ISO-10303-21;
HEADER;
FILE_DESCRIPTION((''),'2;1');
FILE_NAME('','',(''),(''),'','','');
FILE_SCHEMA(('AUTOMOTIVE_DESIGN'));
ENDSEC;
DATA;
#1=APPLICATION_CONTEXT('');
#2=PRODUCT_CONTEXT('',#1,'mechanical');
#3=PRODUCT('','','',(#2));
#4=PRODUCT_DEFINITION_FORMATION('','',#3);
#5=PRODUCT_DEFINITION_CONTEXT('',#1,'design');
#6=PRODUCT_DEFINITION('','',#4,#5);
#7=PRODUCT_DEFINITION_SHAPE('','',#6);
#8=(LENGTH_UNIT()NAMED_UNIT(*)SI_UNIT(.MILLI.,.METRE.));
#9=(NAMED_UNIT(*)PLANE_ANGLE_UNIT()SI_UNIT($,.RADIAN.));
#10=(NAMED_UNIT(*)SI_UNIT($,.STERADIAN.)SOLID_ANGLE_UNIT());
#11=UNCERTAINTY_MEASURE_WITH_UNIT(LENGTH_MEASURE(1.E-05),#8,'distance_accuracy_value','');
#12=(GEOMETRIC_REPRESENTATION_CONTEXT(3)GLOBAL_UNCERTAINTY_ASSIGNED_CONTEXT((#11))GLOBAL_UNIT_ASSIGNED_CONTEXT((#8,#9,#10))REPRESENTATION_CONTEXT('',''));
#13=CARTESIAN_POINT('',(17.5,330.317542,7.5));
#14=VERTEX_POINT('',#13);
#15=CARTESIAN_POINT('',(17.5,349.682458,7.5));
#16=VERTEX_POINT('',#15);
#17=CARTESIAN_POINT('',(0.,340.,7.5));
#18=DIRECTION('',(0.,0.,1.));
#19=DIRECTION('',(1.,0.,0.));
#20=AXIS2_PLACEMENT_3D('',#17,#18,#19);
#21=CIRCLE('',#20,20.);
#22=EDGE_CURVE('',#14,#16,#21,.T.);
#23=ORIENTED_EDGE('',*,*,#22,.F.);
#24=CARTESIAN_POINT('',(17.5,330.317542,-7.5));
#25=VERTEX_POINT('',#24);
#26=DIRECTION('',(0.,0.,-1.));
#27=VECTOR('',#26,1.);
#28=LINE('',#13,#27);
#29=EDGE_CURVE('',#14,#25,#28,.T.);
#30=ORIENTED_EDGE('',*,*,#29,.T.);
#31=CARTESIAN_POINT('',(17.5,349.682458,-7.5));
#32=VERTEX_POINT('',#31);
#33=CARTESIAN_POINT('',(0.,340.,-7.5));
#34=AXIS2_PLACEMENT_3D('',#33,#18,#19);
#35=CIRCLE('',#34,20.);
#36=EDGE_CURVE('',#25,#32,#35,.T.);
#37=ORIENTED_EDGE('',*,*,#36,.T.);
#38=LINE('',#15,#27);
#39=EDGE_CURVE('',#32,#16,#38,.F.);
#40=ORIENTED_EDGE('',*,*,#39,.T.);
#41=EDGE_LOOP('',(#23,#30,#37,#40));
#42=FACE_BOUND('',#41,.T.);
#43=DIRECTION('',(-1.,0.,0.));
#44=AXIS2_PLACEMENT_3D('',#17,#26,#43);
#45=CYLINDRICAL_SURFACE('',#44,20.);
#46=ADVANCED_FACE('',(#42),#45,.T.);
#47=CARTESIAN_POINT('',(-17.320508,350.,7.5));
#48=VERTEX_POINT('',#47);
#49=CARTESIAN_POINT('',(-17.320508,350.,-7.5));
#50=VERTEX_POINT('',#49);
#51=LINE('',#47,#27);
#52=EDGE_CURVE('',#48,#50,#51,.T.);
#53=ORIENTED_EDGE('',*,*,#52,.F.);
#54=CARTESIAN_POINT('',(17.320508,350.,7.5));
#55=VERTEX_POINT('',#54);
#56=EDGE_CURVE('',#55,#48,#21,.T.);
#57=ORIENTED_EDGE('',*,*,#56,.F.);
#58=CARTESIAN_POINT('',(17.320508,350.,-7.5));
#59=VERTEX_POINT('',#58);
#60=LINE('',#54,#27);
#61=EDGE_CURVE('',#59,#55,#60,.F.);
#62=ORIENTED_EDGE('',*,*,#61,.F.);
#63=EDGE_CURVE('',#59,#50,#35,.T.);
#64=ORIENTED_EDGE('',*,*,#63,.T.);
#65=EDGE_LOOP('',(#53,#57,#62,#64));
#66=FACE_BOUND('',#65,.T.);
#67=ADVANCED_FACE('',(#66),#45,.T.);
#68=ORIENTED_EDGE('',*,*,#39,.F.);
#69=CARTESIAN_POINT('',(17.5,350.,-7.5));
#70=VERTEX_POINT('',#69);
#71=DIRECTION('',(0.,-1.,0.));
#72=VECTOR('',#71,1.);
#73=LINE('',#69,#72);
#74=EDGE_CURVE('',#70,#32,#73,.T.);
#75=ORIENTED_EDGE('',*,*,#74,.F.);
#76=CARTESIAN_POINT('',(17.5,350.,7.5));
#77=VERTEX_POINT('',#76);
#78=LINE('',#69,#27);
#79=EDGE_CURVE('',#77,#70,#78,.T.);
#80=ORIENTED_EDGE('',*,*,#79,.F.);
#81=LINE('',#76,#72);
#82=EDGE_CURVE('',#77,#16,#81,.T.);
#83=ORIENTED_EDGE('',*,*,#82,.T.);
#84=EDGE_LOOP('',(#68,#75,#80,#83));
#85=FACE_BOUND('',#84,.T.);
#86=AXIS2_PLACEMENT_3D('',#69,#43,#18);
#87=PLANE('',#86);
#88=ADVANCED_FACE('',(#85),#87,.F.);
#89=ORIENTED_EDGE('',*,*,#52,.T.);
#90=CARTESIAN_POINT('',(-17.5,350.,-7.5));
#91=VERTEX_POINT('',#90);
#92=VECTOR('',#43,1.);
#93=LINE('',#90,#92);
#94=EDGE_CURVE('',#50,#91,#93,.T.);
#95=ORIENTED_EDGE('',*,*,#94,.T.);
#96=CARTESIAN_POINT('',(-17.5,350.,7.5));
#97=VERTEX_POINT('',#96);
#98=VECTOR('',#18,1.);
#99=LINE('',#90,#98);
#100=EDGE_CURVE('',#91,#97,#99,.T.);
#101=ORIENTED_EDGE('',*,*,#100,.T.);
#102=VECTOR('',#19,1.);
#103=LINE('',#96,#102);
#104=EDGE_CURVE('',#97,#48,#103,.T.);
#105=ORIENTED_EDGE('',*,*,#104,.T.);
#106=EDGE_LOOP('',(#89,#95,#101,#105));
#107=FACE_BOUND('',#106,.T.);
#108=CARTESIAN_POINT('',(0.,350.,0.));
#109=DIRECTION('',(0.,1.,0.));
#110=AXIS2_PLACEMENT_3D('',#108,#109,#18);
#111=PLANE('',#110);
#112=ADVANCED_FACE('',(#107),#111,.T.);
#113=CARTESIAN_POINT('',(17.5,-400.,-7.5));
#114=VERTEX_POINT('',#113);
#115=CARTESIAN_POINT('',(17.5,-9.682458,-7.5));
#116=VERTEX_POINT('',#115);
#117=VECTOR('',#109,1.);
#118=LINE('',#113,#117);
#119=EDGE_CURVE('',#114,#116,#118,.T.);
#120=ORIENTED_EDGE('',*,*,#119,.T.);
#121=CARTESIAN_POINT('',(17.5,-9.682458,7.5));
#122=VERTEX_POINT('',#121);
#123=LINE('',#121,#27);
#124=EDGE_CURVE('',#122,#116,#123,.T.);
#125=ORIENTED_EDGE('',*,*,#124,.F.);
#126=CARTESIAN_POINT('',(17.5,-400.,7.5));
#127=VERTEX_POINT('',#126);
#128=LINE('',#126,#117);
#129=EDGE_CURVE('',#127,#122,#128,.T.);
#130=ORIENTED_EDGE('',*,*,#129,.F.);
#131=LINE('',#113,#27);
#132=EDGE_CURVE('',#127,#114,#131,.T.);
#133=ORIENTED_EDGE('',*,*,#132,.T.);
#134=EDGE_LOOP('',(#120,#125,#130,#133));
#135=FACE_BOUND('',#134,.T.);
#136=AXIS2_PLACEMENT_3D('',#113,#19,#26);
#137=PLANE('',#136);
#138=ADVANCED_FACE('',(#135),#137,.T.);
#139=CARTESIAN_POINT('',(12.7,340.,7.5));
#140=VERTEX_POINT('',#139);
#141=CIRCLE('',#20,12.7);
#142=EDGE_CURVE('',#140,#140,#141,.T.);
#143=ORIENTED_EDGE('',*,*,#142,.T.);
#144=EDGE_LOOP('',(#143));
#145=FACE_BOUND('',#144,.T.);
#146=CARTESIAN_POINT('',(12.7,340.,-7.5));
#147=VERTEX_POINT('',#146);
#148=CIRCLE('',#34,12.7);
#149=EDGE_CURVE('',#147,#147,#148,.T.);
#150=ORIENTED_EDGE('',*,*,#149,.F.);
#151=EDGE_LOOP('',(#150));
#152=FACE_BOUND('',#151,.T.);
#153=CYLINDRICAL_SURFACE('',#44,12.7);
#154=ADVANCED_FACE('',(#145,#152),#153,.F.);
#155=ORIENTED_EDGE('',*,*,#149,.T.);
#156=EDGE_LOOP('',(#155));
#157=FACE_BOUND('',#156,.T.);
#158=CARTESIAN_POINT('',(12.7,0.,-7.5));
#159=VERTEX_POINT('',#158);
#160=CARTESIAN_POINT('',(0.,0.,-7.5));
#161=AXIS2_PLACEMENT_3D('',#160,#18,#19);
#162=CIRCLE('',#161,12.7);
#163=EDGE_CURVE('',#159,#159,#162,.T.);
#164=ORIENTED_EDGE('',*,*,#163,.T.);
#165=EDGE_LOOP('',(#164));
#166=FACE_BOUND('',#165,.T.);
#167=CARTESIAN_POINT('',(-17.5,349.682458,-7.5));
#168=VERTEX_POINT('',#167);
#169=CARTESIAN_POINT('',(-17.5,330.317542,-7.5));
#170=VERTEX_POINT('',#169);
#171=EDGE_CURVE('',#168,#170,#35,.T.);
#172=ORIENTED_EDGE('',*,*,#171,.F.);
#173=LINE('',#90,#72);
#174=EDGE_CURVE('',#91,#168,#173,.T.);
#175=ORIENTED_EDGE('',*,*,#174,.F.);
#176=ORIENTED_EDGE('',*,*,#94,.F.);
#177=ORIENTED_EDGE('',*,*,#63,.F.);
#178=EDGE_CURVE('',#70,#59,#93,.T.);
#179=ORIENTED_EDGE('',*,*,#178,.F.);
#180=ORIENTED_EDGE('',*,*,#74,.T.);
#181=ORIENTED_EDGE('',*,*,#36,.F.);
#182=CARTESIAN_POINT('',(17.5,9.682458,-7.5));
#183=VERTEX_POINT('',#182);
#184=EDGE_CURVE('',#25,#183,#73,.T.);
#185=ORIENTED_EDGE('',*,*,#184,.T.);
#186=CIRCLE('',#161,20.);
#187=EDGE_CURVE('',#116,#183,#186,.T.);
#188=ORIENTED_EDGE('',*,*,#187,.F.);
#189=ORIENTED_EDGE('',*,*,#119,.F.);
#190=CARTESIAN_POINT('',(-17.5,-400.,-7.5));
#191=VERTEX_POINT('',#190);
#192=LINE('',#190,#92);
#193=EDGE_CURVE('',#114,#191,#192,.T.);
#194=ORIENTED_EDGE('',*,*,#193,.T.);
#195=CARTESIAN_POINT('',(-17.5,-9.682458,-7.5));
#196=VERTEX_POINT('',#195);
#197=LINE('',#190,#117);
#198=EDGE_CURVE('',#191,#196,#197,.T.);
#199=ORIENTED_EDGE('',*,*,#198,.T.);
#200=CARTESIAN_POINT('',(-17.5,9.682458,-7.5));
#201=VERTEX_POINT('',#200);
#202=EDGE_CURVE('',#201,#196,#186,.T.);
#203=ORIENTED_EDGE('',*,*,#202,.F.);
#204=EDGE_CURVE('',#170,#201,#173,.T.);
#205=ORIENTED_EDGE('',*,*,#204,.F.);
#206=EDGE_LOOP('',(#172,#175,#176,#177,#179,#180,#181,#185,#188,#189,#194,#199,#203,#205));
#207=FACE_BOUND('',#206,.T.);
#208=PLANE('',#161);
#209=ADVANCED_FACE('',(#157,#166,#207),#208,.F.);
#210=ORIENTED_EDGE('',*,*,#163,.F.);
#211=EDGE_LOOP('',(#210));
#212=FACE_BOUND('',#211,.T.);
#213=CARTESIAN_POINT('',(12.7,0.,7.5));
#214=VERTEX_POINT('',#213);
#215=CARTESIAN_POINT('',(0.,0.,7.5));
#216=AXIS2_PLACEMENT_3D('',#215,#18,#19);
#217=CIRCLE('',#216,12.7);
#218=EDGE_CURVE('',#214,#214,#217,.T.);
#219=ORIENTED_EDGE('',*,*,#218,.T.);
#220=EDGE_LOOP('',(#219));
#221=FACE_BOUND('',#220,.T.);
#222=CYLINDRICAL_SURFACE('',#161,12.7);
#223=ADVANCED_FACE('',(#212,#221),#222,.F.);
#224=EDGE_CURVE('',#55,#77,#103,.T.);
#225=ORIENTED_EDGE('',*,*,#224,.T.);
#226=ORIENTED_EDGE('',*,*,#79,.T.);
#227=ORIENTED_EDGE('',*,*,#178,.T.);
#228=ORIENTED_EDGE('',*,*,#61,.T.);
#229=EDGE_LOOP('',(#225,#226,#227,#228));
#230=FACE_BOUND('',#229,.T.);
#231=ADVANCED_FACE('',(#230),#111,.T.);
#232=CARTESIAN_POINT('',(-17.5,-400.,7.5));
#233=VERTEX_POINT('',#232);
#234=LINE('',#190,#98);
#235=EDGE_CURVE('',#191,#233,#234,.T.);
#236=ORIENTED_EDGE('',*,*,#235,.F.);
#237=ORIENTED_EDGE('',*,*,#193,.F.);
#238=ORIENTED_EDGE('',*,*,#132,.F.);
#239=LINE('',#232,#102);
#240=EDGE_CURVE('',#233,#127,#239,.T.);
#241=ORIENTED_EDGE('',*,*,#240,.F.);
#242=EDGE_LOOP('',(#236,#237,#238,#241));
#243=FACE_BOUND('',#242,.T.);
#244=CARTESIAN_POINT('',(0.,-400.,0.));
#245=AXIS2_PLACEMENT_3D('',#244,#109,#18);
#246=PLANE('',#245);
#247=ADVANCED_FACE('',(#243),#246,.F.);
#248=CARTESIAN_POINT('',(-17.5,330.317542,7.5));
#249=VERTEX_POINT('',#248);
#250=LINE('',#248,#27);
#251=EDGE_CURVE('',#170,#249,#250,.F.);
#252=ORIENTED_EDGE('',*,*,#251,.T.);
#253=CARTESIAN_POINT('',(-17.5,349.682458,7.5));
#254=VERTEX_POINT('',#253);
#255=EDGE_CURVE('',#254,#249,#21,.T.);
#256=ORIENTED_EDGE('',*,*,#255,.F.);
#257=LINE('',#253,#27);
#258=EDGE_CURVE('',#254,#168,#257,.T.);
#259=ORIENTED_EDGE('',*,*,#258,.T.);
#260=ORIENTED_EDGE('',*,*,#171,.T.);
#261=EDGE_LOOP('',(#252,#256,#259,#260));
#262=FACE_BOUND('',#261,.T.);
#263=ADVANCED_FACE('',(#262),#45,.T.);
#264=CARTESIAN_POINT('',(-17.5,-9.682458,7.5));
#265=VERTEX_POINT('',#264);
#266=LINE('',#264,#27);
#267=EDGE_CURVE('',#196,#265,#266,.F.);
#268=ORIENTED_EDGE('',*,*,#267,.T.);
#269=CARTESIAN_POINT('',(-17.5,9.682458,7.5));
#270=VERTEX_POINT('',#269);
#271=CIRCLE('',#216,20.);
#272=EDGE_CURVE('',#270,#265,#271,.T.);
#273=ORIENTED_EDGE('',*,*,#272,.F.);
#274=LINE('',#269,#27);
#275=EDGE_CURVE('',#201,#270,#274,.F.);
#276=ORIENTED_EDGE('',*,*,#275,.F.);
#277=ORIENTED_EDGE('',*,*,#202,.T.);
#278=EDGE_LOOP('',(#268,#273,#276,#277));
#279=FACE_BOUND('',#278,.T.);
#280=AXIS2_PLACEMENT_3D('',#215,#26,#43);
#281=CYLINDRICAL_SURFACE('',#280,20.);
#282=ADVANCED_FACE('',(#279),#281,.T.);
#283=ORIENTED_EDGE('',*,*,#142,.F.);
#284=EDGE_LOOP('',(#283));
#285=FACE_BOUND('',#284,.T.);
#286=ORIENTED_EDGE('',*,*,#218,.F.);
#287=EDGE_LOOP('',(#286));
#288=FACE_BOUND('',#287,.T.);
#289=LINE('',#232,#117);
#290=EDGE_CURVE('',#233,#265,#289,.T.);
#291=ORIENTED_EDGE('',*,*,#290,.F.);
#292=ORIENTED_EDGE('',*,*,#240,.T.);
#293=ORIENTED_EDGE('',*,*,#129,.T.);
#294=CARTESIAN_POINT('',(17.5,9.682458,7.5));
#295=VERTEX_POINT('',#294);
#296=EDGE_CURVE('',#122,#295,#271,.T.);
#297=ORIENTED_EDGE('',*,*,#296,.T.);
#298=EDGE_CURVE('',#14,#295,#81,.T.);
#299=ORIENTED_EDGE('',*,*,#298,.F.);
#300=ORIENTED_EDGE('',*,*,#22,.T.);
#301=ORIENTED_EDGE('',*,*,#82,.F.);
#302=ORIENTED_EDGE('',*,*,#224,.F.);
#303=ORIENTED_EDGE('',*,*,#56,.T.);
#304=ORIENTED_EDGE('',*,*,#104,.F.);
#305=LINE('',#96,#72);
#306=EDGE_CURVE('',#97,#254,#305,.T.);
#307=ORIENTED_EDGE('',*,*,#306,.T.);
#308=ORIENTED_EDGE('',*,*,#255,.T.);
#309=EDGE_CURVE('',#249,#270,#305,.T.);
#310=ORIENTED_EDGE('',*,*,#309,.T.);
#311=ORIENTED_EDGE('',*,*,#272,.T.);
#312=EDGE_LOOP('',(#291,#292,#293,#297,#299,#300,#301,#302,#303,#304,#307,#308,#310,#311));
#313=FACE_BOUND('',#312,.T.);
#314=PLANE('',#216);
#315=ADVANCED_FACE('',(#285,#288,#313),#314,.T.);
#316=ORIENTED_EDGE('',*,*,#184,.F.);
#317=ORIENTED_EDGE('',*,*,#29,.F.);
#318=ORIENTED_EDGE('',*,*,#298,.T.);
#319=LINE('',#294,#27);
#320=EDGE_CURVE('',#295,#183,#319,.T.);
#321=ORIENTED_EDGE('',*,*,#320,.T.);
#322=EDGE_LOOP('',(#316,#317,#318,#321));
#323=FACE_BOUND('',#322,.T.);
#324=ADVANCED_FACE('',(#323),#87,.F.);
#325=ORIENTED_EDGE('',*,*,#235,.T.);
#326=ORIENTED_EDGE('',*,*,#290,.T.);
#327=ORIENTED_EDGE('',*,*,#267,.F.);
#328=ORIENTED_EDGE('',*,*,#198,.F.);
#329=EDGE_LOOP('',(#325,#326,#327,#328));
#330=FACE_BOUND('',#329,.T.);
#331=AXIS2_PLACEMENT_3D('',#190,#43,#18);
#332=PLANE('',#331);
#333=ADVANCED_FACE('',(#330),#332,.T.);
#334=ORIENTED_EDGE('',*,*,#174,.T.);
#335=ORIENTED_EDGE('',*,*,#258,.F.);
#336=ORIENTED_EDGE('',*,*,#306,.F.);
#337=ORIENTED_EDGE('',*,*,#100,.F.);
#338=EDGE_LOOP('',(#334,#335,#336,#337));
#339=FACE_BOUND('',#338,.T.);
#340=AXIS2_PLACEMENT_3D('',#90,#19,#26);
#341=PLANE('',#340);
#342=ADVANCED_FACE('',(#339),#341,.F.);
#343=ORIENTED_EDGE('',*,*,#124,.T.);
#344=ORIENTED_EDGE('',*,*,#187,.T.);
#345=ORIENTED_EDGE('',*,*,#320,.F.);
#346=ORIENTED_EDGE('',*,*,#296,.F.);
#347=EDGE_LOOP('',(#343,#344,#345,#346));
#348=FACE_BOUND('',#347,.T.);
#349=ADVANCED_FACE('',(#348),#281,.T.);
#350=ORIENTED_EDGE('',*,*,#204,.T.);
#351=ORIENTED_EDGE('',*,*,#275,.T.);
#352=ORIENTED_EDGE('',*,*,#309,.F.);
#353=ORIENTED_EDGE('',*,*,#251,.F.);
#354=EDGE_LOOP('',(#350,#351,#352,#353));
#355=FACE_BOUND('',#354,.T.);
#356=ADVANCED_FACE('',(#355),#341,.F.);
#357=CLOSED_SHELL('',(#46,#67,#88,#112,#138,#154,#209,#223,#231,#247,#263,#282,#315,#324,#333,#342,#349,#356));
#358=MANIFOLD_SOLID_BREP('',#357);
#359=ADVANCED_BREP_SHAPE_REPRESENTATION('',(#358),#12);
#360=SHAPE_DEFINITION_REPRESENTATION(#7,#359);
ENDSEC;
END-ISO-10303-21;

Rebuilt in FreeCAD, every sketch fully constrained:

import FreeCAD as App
import Part
import Sketcher
from FreeCAD import Vector
Q = App.Units.Quantity


def add_polygon(sketch, points):
    """Adds a closed chain of lines whose ends are joined by coincident constraints."""
    first, n = sketch.GeometryCount, len(points)
    for a, b in zip(points, points[1:] + points[:1]):
        sketch.addGeometry(Part.LineSegment(App.Vector(*a, 0), App.Vector(*b, 0)), False)
    for i in range(n):
        sketch.addConstraint(Sketcher.Constraint("Coincident", first + i, 2, first + (i + 1) % n, 1))

doc = App.newDocument("Part")
body = doc.addObject("PartDesign::Body", "Body")

sketch1 = body.newObject("Sketcher::SketchObject", "Sketch")
sketch1.AttachmentSupport = (doc.getObject("XY_Plane"), [""])
sketch1.MapMode = "FlatFace"
sketch1.addGeometry([
    Part.Circle(Vector(0, 0, 0), Vector(0, 0, 1), 20),
    Part.Circle(Vector(0, 0, 0), Vector(0, 0, 1), 13),
], False)
sketch1.addConstraint([
    Sketcher.Constraint("Coincident", 0, 3, -1, 1),
    Sketcher.Constraint("Coincident", 1, 3, -1, 1),
    Sketcher.Constraint("Diameter", 0, Q("40 mm")),
    Sketcher.Constraint("Diameter", 1, Q("25.4 mm")),
])
pad1 = body.newObject("PartDesign::Pad", "Pad")
pad1.Profile = sketch1
pad1.Length = 15
pad1.Midplane = True

sketch2 = body.newObject("Sketcher::SketchObject", "Sketch001")
sketch2.AttachmentSupport = (doc.getObject("XZ_Plane"), [""])
sketch2.MapMode = "FlatFace"
add_polygon(sketch2, [(-18, -8), (-18, 8), (18, 8), (18, -8)])
sketch2.addConstraint([
    Sketcher.Constraint("Vertical", 0),
    Sketcher.Constraint("Horizontal", 1),
    Sketcher.Constraint("Vertical", 2),
    Sketcher.Constraint("Horizontal", 3),
    Sketcher.Constraint("Symmetric", 0, 2, 2, 2, -1, 1),
    Sketcher.Constraint("DistanceX", 1, 1, 1, 2, Q("35 mm")),
    Sketcher.Constraint("DistanceY", 0, 1, 0, 2, Q("15 mm")),
])
pad2 = body.newObject("PartDesign::Pad", "Pad001")
pad2.Profile = sketch2
pad2.Length = 400

sketch3 = body.newObject("Sketcher::SketchObject", "Sketch002")
sketch3.AttachmentSupport = (doc.getObject("XZ_Plane"), [""])
sketch3.MapMode = "FlatFace"
add_polygon(sketch3, [(-18, -8), (-18, 8), (18, 8), (18, -8)])
sketch3.addConstraint([
    Sketcher.Constraint("Vertical", 0),
    Sketcher.Constraint("Horizontal", 1),
    Sketcher.Constraint("Vertical", 2),
    Sketcher.Constraint("Horizontal", 3),
    Sketcher.Constraint("Symmetric", 0, 2, 2, 2, -1, 1),
    Sketcher.Constraint("DistanceX", 1, 1, 1, 2, Q("35 mm")),
    Sketcher.Constraint("DistanceY", 0, 1, 0, 2, Q("15 mm")),
])
pad3 = body.newObject("PartDesign::Pad", "Pad002")
pad3.Profile = sketch3
pad3.Length = 350
pad3.Reversed = True

sketch4 = body.newObject("Sketcher::SketchObject", "Sketch003")
sketch4.AttachmentSupport = (doc.getObject("XY_Plane"), [""])
sketch4.MapMode = "FlatFace"
sketch4.addGeometry(Part.Circle(Vector(0, 0, 0), Vector(0, 0, 1), 13), False)
sketch4.addConstraint([
    Sketcher.Constraint("Coincident", 0, 3, -1, 1),
    Sketcher.Constraint("Diameter", 0, Q("25.4 mm")),
])
pocket1 = body.newObject("PartDesign::Pocket", "Pocket")
pocket1.Profile = sketch4
pocket1.Length = 17
pocket1.Midplane = True
doc.recompute()

linearpattern = body.newObject("PartDesign::LinearPattern", "LinearPattern")
linearpattern.Originals = [pad1, pocket1]
linearpattern.Direction = (doc.getObject("Y_Axis"), [""])
linearpattern.Mode = "offset"
linearpattern.Offset = 340
linearpattern.Occurrences = 2
body.Tip = linearpattern

doc.recompute()
